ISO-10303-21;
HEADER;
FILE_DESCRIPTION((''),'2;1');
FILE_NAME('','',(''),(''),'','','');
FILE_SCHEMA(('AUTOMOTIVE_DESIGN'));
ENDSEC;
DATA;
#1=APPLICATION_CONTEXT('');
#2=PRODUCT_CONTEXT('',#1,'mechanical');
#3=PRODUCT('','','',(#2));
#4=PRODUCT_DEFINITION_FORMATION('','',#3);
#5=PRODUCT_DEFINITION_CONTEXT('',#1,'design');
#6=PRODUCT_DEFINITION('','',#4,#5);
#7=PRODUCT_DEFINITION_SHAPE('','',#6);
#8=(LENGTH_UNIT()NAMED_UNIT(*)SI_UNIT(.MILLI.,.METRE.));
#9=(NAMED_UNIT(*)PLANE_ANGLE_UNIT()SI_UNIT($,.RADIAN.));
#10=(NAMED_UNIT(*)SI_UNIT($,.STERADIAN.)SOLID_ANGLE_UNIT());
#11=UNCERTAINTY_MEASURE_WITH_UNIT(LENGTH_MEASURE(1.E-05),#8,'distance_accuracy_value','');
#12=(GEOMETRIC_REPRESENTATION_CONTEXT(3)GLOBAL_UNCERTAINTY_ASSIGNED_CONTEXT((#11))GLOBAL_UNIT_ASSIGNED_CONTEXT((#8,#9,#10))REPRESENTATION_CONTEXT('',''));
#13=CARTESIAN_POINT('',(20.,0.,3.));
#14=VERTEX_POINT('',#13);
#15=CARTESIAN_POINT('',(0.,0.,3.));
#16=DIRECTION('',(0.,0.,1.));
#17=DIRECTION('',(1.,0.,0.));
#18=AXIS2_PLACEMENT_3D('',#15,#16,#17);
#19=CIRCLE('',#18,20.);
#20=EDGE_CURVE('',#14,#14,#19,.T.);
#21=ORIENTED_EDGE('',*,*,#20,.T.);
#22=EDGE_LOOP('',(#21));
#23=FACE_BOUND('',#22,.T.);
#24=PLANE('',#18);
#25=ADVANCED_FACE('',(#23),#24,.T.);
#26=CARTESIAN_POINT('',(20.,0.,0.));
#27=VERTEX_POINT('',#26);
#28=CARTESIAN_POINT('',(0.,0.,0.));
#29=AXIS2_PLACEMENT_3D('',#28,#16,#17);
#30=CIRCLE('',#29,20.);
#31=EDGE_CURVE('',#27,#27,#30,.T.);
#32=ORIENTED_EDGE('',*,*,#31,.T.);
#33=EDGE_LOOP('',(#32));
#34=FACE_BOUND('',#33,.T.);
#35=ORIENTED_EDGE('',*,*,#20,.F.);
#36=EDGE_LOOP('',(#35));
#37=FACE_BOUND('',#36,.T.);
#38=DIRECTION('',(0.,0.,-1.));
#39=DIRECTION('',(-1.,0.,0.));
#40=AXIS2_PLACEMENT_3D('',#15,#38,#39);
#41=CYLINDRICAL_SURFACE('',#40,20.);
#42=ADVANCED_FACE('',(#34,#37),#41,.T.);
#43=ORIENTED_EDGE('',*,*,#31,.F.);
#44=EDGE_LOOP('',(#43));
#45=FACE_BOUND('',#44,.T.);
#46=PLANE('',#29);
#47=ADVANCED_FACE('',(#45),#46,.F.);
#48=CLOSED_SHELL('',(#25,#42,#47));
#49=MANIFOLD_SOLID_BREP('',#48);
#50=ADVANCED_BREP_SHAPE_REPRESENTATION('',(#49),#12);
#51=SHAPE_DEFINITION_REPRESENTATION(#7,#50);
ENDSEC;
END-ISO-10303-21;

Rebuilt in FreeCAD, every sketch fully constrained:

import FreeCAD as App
import Part
import Sketcher
from FreeCAD import Vector

doc = App.newDocument("Part")
params = doc.addObject("Spreadsheet::Sheet", "Params")
for row, (alias, value) in enumerate([
    ("sketch1_diameter", "40 mm"),
    ("pad1_length", "3 mm"),
], start=1):
    params.set(f"A{row}", alias)
    params.set(f"B{row}", "=" + value)
    params.setAlias(f"B{row}", alias)

body = doc.addObject("PartDesign::Body", "Body")

# Sketch on XY plane
sketch1 = body.newObject("Sketcher::SketchObject", "Sketch")
sketch1.AttachmentSupport = (doc.getObject("XY_Plane"), [""])
sketch1.MapMode = "FlatFace"
sketch1.addGeometry(Part.Circle(Vector(0, 0, 0), Vector(0, 0, 1), 20), False)
sketch1.addConstraint(Sketcher.Constraint("Coincident", 0, 3, -1, 1))
sketch1.addConstraint(Sketcher.Constraint("Diameter", 0, 40.0))
sketch1.setExpression("Constraints[1]", "Params.sketch1_diameter")
pad1 = body.newObject("PartDesign::Pad", "Pad")
pad1.Profile = sketch1
pad1.setExpression("Length", "Params.pad1_length")

doc.recompute()
